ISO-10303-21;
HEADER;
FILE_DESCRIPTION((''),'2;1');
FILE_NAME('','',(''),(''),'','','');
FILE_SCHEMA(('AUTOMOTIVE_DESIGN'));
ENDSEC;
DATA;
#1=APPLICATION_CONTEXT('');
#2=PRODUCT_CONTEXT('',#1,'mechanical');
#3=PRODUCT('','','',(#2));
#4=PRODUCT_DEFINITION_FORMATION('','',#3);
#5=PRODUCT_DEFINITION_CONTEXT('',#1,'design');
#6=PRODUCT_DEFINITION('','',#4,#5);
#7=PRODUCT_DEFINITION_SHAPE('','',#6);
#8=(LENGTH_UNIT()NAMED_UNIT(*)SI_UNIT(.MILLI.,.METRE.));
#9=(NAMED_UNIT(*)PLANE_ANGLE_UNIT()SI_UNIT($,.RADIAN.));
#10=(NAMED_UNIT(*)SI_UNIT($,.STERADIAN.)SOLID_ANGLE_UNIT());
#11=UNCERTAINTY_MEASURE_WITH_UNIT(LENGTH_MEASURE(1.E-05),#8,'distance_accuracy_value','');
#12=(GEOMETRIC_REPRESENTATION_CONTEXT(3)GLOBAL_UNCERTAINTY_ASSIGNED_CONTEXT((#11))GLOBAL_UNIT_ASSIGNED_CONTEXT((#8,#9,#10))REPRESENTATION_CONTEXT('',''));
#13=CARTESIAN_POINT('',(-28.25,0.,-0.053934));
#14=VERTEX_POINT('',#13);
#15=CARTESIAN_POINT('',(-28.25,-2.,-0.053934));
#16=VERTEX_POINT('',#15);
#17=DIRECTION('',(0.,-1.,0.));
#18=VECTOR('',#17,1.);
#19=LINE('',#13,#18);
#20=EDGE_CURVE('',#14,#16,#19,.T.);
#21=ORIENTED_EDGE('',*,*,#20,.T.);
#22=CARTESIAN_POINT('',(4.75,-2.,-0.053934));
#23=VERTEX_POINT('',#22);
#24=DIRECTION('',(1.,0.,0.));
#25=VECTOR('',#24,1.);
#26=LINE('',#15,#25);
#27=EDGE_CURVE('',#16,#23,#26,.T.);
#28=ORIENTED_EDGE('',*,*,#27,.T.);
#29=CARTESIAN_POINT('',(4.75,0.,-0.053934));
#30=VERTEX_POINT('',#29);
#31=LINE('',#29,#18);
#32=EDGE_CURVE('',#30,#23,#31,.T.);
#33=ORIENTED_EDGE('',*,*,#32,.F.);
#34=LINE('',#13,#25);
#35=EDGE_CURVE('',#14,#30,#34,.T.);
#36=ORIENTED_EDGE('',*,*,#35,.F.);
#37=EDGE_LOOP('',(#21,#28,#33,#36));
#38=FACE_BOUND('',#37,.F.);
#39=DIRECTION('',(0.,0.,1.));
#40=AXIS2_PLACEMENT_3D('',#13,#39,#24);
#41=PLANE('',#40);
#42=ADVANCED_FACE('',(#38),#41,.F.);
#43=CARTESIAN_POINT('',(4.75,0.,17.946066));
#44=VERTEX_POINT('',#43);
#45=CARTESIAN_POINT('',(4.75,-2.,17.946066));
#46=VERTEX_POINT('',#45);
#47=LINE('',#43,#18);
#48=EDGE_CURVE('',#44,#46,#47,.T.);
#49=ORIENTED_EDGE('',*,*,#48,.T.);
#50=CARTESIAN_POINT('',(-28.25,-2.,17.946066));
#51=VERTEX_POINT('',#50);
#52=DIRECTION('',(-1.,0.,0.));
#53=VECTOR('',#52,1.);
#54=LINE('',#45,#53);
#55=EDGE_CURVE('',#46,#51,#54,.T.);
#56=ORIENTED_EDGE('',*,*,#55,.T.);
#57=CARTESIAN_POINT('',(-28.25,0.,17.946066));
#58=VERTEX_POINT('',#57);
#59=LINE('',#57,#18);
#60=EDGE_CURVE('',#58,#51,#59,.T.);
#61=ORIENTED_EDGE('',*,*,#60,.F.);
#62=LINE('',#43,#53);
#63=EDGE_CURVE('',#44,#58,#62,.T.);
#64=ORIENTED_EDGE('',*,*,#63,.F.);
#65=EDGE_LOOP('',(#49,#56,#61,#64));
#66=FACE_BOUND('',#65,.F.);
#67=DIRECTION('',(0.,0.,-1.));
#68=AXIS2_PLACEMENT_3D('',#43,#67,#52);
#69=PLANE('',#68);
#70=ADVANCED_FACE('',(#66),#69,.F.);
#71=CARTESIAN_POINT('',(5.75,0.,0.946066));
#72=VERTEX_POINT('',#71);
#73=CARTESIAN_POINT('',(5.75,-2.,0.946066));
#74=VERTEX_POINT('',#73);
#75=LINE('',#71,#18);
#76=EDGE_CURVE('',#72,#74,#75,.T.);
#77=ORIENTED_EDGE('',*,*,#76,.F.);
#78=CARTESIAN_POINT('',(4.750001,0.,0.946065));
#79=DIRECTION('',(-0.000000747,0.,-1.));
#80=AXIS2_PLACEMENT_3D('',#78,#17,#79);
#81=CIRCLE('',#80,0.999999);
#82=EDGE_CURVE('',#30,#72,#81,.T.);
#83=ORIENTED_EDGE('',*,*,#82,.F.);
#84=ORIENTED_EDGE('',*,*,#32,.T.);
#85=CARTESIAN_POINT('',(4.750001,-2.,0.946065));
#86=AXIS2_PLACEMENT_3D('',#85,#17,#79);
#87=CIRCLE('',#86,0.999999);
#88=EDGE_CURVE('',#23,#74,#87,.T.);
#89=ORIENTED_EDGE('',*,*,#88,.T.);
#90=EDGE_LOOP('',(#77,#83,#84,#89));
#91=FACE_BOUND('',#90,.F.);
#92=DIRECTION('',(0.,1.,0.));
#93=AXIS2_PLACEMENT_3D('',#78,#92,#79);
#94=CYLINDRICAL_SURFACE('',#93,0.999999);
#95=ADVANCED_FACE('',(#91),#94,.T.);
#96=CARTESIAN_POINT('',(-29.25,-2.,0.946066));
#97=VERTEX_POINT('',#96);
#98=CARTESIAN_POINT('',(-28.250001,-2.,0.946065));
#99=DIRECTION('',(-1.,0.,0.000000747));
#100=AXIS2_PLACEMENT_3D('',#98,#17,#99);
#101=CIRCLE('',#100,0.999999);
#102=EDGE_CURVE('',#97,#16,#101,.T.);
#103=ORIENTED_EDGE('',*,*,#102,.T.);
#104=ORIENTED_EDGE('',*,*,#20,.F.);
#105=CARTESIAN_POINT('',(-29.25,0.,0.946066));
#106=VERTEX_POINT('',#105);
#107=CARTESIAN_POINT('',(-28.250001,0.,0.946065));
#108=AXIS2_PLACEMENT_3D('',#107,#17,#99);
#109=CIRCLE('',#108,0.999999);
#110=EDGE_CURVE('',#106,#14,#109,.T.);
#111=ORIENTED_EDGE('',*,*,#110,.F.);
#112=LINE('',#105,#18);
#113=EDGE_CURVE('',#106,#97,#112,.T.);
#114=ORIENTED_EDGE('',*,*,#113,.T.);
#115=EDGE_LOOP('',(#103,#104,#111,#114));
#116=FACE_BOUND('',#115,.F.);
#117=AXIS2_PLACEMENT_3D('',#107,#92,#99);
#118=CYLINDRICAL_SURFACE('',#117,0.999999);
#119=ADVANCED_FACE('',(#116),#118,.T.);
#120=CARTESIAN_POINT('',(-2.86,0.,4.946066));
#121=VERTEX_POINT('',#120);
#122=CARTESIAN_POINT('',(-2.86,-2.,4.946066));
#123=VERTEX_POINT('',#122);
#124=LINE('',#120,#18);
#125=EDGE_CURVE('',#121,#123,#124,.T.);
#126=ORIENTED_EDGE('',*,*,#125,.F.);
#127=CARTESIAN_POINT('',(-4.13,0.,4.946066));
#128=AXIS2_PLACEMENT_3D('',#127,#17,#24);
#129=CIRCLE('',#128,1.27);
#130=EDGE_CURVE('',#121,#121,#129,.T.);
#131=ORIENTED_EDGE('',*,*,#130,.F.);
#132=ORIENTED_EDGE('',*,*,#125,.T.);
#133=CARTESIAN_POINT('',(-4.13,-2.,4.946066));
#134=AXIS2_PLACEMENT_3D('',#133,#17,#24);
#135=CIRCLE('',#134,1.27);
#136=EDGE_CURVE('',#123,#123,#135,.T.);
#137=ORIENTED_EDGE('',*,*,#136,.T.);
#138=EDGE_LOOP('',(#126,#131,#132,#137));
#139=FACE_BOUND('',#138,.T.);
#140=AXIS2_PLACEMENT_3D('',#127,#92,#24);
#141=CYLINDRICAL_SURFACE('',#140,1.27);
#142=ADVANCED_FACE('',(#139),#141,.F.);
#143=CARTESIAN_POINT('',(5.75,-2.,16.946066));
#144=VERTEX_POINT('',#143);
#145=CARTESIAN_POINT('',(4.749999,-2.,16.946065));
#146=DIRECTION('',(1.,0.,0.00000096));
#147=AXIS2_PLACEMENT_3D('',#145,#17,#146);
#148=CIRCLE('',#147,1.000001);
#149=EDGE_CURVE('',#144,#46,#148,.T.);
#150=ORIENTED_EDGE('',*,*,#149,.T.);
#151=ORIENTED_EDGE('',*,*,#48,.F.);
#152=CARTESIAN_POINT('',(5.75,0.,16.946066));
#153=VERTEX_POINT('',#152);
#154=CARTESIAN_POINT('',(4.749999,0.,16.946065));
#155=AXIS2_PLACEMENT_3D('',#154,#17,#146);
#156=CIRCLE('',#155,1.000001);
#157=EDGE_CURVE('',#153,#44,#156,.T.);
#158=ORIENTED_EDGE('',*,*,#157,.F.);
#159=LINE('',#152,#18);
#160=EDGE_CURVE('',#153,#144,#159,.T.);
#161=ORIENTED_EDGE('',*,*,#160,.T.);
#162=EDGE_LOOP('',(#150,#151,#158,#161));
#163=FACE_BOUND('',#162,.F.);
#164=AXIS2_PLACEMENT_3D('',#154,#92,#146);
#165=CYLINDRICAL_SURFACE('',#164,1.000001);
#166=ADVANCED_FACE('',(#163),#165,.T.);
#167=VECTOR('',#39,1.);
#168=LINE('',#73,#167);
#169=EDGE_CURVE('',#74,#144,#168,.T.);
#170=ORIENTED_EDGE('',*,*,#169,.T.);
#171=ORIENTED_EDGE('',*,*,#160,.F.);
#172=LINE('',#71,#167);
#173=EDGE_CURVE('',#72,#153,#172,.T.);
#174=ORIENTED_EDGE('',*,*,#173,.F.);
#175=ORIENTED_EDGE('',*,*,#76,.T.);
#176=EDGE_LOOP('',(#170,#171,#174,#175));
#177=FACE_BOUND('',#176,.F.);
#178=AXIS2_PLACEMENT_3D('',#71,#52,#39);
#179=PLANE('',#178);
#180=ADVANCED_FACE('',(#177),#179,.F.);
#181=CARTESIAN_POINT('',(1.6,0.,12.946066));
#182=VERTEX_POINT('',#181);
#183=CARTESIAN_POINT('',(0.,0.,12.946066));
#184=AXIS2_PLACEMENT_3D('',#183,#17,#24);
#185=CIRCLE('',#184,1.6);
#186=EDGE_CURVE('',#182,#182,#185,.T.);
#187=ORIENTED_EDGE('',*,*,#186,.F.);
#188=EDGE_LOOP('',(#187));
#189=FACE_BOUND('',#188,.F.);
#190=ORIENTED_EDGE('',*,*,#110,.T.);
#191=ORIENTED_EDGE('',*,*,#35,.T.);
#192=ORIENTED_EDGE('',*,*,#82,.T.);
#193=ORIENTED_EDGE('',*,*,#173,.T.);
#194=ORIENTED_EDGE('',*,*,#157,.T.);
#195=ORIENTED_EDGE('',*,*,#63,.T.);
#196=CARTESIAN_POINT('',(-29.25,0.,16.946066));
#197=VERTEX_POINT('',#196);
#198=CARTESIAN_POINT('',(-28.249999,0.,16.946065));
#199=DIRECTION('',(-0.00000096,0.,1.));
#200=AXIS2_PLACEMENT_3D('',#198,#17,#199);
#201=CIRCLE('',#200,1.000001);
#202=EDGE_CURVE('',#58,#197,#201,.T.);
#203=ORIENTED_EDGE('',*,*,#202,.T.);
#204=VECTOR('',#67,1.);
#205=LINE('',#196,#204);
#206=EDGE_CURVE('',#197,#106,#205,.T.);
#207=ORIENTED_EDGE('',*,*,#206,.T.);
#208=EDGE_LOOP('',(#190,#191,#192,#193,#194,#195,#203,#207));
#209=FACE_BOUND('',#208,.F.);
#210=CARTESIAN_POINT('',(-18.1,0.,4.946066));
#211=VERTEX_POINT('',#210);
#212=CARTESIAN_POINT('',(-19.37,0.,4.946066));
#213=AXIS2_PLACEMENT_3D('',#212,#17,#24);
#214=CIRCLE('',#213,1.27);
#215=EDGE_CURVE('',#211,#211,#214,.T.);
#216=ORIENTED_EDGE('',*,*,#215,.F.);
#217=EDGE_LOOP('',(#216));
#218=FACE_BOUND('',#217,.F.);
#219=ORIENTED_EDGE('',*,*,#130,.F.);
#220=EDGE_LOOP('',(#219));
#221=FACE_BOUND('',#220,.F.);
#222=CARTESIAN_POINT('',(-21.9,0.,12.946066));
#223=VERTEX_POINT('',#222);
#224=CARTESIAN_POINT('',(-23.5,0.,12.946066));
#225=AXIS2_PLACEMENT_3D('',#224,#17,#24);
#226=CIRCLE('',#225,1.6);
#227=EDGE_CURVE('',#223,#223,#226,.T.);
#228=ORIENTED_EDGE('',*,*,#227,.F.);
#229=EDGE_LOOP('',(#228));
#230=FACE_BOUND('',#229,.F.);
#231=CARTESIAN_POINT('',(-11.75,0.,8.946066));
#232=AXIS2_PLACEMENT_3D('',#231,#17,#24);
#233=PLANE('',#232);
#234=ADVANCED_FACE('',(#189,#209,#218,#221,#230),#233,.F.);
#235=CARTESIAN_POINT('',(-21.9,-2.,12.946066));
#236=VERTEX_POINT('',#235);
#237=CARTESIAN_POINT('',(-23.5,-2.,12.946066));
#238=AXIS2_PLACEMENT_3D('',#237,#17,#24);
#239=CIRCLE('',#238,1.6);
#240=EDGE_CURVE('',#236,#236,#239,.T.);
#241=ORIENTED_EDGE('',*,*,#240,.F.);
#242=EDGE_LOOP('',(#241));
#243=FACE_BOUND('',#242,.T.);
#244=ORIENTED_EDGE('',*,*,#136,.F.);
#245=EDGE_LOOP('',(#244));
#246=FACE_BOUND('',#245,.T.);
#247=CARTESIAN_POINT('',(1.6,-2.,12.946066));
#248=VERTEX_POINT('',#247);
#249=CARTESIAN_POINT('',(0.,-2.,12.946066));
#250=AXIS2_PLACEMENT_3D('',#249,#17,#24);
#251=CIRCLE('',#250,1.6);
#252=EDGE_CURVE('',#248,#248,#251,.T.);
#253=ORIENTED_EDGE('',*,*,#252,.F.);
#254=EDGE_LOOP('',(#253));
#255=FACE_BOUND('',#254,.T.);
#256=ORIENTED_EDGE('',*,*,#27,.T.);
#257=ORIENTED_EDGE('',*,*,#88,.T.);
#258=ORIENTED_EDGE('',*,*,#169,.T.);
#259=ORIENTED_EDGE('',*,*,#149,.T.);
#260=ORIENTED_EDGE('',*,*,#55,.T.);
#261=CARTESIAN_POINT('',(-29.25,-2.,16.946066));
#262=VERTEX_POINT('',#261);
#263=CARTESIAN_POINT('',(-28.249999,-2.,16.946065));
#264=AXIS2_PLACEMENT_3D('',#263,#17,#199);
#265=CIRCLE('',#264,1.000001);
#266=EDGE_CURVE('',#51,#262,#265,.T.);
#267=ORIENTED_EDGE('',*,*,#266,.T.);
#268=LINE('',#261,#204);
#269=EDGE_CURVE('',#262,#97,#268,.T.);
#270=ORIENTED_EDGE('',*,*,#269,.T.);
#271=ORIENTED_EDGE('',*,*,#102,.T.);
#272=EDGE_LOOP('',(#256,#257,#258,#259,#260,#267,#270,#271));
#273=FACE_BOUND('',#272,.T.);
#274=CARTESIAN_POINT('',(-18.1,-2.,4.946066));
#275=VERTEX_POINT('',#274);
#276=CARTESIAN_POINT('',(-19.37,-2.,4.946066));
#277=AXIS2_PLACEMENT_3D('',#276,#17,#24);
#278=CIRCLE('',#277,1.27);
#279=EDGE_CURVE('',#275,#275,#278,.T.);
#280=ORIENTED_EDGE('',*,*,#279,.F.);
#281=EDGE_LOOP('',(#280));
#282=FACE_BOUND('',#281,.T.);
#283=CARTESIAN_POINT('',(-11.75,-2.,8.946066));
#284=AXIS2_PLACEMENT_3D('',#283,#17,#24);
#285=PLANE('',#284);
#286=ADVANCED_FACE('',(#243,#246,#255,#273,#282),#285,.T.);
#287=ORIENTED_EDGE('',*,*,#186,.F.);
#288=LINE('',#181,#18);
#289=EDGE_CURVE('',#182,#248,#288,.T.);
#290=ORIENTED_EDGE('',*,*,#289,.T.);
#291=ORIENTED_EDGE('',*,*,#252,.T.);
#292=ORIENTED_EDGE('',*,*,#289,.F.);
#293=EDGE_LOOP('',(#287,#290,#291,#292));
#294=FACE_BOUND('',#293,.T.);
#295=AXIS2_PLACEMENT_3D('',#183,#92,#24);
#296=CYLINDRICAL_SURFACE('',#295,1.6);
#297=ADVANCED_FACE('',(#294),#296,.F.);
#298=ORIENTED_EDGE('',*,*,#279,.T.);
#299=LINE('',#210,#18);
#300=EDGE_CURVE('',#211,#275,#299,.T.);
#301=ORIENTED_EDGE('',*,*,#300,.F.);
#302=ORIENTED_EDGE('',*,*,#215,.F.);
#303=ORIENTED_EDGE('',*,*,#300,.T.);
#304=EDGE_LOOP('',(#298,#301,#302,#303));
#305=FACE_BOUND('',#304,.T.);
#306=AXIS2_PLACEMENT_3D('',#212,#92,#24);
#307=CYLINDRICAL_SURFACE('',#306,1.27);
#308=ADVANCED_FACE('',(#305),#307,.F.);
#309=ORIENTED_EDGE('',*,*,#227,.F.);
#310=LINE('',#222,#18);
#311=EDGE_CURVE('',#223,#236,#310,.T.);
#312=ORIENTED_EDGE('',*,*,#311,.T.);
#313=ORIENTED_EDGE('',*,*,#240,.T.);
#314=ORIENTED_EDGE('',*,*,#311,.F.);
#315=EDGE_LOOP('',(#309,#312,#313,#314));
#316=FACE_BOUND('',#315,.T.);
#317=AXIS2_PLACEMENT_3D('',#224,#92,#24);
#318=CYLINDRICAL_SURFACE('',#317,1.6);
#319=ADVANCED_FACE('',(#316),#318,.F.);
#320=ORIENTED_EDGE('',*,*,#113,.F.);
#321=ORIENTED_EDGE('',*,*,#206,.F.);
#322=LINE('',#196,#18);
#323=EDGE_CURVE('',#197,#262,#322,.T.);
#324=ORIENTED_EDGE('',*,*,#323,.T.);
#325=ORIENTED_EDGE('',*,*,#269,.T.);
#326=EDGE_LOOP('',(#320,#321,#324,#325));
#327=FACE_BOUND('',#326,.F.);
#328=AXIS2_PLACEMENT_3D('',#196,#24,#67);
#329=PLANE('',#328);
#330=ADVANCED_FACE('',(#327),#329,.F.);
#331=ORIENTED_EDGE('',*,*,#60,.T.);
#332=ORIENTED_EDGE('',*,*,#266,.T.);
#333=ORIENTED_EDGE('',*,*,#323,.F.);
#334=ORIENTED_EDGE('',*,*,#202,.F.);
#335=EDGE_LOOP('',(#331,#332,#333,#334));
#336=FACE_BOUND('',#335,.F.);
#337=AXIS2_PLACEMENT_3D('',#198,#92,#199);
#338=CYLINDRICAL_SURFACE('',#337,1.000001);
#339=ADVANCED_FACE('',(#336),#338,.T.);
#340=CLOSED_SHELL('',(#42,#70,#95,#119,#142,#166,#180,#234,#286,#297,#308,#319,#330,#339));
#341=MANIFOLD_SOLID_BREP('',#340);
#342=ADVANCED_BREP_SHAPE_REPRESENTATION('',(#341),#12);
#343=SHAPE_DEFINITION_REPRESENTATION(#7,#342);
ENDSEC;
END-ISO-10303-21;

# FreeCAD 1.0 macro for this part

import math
import FreeCAD as App
import Part
import Sketcher
Q = App.Units.Quantity

doc = App.newDocument("Part")
body = doc.addObject("PartDesign::Body", "Body")

# Sketch on XZ plane
sketch1 = doc.addObject("Sketcher::SketchObject", "Sketch")
body.addObject(sketch1)
sketch1.AttachmentSupport = (doc.XZ_Plane, [""])
sketch1.MapMode = "FlatFace"
sketch1.addGeometry(Part.LineSegment(App.Vector(4.8, 17.9, 0), App.Vector(-28.2, 17.9, 0)), False)
sketch1.addGeometry(Part.ArcOfCircle(Part.Circle(App.Vector(-28.2, 16.9, 0), App.Vector(0, 0, 1), 1), math.radians(90), math.radians(180)), False)
sketch1.addGeometry(Part.LineSegment(App.Vector(-29.2, 16.9, 0), App.Vector(-29.2, 0.9, 0)), False)
sketch1.addGeometry(Part.ArcOfCircle(Part.Circle(App.Vector(-28.3, 0.9, 0), App.Vector(0, 0, 1), 1), math.radians(180), math.radians(270)), False)
sketch1.addGeometry(Part.LineSegment(App.Vector(-28.2, -0.1, 0), App.Vector(4.8, -0.1, 0)), False)
sketch1.addGeometry(Part.ArcOfCircle(Part.Circle(App.Vector(4.8, 0.9, 0), App.Vector(0, 0, 1), 1), math.radians(-90), math.radians(0)), False)
sketch1.addGeometry(Part.LineSegment(App.Vector(5.8, 0.9, 0), App.Vector(5.8, 16.9, 0)), False)
sketch1.addGeometry(Part.ArcOfCircle(Part.Circle(App.Vector(4.7, 16.9, 0), App.Vector(0, 0, 1), 1), math.radians(0), math.radians(90)), False)
sketch1.addGeometry(Part.Circle(App.Vector(-19.4, 4.9, 0), App.Vector(0, 0, 1), 1.3), False)
sketch1.addGeometry(Part.Circle(App.Vector(-4.1, 4.9, 0), App.Vector(0, 0, 1), 1.3), False)
sketch1.addGeometry(Part.Circle(App.Vector(-23.5, 12.9, 0), App.Vector(0, 0, 1), 1.6), False)
sketch1.addGeometry(Part.Circle(App.Vector(0, 12.9, 0), App.Vector(0, 0, 1), 1.6), False)
sketch1.addConstraint(Sketcher.Constraint("Tangent", 0, 2, 1, 1))
sketch1.addConstraint(Sketcher.Constraint("Tangent", 1, 2, 2, 1))
sketch1.addConstraint(Sketcher.Constraint("Tangent", 2, 2, 3, 1))
sketch1.addConstraint(Sketcher.Constraint("Tangent", 3, 2, 4, 1))
sketch1.addConstraint(Sketcher.Constraint("Tangent", 4, 2, 5, 1))
sketch1.addConstraint(Sketcher.Constraint("Tangent", 5, 2, 6, 1))
sketch1.addConstraint(Sketcher.Constraint("Tangent", 6, 2, 7, 1))
sketch1.addConstraint(Sketcher.Constraint("Tangent", 7, 2, 0, 1))
sketch1.addConstraint(Sketcher.Constraint("Horizontal", 0))
sketch1.addConstraint(Sketcher.Constraint("Vertical", 2))
sketch1.addConstraint(Sketcher.Constraint("Horizontal", 4))
sketch1.addConstraint(Sketcher.Constraint("Vertical", 6))
sketch1.addConstraint(Sketcher.Constraint("Equal", 1, 3))
sketch1.addConstraint(Sketcher.Constraint("Equal", 3, 5))
sketch1.addConstraint(Sketcher.Constraint("Equal", 5, 7))
sketch1.addConstraint(Sketcher.Constraint("Equal", 8, 9))
sketch1.addConstraint(Sketcher.Constraint("Equal", 10, 11))
sketch1.addConstraint(Sketcher.Constraint("PointOnObject", 11, 3, -2))
sketch1.addConstraint(Sketcher.Constraint("Horizontal", 8, 3, 9, 3))
sketch1.addConstraint(Sketcher.Constraint("Horizontal", 10, 3, 11, 3))
sketch1.addConstraint(Sketcher.Constraint("Radius", 1, Q("1.000001 mm")))
sketch1.addConstraint(Sketcher.Constraint("Diameter", 10, Q("3.2 mm")))
sketch1.addConstraint(Sketcher.Constraint("Diameter", 8, Q("2.54 mm")))
sketch1.addConstraint(Sketcher.Constraint("DistanceX", 0, 2, 0, 1, Q("33 mm")))
sketch1.addConstraint(Sketcher.Constraint("DistanceY", 2, 2, 2, 1, Q("16 mm")))
sketch1.addConstraint(Sketcher.Constraint("DistanceY", 3, 3, 8, 3, Q("4.000001 mm")))
sketch1.addConstraint(Sketcher.Constraint("DistanceY", 10, 3, 1, 3, Q("3.999999 mm")))
sketch1.addConstraint(Sketcher.Constraint("DistanceX", 10, 3, -1, 1, Q("23.5 mm")))
sketch1.addConstraint(Sketcher.Constraint("DistanceX", 1, 3, -1, 1, Q("28.249999 mm")))
sketch1.addConstraint(Sketcher.Constraint("DistanceX", 8, 3, -1, 1, Q("19.37 mm")))
sketch1.addConstraint(Sketcher.Constraint("DistanceX", 9, 3, -1, 1, Q("4.13 mm")))
sketch1.addConstraint(Sketcher.Constraint("DistanceY", -1, 1, 1, 3, Q("16.946065 mm")))
pad1 = doc.addObject("PartDesign::Pad", "Pad")
body.addObject(pad1)
pad1.Profile = sketch1
pad1.Length = 2

doc.recompute()
